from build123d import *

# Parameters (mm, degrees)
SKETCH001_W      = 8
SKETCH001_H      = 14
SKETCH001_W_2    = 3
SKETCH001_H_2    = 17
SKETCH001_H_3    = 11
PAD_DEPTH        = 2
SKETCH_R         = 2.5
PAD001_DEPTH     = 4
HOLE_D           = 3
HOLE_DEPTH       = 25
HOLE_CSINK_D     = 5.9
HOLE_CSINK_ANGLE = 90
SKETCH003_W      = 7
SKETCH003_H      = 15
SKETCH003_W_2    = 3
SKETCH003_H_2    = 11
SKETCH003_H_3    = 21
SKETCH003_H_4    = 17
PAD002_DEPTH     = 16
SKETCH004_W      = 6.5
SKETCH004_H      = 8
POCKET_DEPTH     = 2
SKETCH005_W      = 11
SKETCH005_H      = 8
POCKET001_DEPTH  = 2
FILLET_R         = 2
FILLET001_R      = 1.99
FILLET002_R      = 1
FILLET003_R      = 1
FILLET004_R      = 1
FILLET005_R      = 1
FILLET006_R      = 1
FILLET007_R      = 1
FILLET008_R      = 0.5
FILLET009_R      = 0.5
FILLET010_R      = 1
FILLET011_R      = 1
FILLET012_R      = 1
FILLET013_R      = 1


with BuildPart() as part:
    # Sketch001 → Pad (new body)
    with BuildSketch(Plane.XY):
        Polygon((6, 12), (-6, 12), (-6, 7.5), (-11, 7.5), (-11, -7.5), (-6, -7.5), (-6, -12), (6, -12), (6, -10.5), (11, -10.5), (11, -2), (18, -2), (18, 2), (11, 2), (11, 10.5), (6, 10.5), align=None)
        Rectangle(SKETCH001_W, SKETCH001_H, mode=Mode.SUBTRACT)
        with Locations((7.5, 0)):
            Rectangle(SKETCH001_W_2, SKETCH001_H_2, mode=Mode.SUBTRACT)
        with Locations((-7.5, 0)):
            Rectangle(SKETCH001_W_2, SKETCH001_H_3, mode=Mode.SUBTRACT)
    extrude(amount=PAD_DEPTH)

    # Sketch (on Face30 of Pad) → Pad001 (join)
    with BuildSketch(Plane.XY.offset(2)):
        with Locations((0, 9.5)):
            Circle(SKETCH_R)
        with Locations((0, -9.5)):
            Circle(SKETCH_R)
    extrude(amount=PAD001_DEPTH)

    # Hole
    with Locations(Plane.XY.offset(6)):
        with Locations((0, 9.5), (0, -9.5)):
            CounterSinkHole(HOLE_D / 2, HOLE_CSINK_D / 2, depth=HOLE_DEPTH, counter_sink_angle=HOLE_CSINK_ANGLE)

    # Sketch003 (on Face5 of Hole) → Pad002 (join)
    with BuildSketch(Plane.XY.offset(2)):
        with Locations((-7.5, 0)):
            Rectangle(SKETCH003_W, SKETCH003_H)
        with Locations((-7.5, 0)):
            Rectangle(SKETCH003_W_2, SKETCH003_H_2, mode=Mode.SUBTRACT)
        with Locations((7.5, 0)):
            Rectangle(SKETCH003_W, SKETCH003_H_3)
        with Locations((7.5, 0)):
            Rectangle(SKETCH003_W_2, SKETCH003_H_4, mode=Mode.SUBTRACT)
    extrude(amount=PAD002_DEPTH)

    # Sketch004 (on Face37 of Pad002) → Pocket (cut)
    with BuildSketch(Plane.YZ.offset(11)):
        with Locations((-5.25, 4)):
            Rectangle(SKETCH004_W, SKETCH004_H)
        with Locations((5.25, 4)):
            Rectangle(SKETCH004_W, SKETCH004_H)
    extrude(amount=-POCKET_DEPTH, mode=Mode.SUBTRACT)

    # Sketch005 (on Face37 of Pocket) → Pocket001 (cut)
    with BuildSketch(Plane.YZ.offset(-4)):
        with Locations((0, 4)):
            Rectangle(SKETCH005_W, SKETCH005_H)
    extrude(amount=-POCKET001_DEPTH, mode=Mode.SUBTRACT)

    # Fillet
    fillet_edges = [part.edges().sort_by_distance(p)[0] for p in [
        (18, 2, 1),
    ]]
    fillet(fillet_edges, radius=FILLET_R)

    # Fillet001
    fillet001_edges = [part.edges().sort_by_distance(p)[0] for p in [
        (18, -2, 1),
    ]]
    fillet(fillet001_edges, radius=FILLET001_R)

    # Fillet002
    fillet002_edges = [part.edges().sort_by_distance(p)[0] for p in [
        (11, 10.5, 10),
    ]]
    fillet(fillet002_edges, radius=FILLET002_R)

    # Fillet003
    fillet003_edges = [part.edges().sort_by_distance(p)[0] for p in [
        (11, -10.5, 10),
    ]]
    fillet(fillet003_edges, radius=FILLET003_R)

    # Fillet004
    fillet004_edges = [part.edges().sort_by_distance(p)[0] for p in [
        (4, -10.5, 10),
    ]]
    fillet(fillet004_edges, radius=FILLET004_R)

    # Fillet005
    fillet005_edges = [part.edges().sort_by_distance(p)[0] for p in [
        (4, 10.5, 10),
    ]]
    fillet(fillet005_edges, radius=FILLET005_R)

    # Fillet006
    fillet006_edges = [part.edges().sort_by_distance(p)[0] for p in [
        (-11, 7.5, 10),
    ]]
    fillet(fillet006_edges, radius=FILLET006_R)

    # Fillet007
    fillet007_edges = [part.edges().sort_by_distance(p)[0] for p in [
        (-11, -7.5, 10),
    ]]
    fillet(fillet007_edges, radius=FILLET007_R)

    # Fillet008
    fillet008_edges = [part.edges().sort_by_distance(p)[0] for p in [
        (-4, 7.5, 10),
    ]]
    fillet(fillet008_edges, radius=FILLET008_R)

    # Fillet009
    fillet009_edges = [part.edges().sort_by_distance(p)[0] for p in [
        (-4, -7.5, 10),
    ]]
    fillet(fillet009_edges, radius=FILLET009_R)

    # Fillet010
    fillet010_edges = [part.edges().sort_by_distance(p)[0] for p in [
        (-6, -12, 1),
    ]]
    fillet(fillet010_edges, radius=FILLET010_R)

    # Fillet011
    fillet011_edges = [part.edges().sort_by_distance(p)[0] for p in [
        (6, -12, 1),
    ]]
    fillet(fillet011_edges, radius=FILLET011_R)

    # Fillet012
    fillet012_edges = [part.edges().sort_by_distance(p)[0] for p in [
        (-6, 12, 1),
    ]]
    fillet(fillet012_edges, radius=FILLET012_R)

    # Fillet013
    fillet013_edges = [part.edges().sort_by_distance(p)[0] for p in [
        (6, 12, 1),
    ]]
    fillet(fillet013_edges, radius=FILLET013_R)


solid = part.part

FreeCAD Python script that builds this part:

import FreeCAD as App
import Part
import Sketcher

V = App.Vector
Q = App.Units.Quantity


def edges_at(feature, points):
    """Names of the edges that pass closest to the given points."""
    edges = feature.Shape.Edges
    near = lambda p: min(range(len(edges)), key=lambda i: edges[i].distToShape(Part.Vertex(*p))[0])
    return sorted({f"Edge{near(p) + 1}" for p in points})


def add_polygon(sketch, points):
    """Adds a closed chain of lines whose ends are joined by coincident constraints."""
    first, n = sketch.GeometryCount, len(points)
    for a, b in zip(points, points[1:] + points[:1]):
        sketch.addGeometry(Part.LineSegment(App.Vector(*a, 0), App.Vector(*b, 0)), False)
    for i in range(n):
        sketch.addConstraint(Sketcher.Constraint("Coincident", first + i, 2, first + (i + 1) % n, 1))

doc = App.newDocument("Part")
params = doc.addObject("Spreadsheet::Sheet", "Params")
for row, (alias, value) in enumerate([
    ("sketch1_width", "12 mm"),
    ("sketch1_width2", "5 mm"),
    ("sketch1_width3", "7 mm"),
    ("sketch1_width4", "3 mm"),
    ("sketch1_width5", "8 mm"),
    ("pad1_length", "2 mm"),
    ("sketch2_diameter", "5 mm"),
    ("pad2_length", "4 mm"),
    ("sketch3_diameter", "3 mm"),
    ("hole_diameter", "3 mm"),
    ("hole_depth", "25 mm"),
    ("hole_csink_diameter", "5.9 mm"),
    ("sketch4_width", "7 mm"),
    ("sketch4_width2", "3 mm"),
    ("sketch4_height", "15 mm"),
    ("sketch4_height2", "11 mm"),
    ("sketch4_height3", "21 mm"),
    ("pad3_length", "16 mm"),
    ("sketch5_height", "8 mm"),
    ("sketch5_width", "6.5 mm"),
    ("pocket1_length", "2 mm"),
    ("sketch6_width", "11 mm"),
    ("sketch6_height", "8 mm"),
    ("pocket2_length", "2 mm"),
    ("fillet_radius", "2 mm"),
    ("fillet2_radius", "1.99 mm"),
    ("fillet3_radius", "1 mm"),
    ("fillet4_radius", "1 mm"),
    ("fillet5_radius", "1 mm"),
    ("fillet6_radius", "1 mm"),
    ("fillet7_radius", "1 mm"),
    ("fillet8_radius", "1 mm"),
    ("fillet9_radius", "0.5 mm"),
    ("fillet10_radius", "0.5 mm"),
    ("fillet11_radius", "1 mm"),
    ("fillet12_radius", "1 mm"),
    ("fillet13_radius", "1 mm"),
    ("fillet14_radius", "1 mm"),
], start=1):
    params.set(f"A{row}", alias)
    params.set(f"B{row}", "=" + value)
    params.setAlias(f"B{row}", alias)

body = doc.addObject("PartDesign::Body", "Body")

# Sketch on XY plane
sketch1 = doc.addObject("Sketcher::SketchObject", "Sketch")
body.addObject(sketch1)
sketch1.AttachmentSupport = (doc.XY_Plane, [""])
sketch1.MapMode = "FlatFace"
add_polygon(sketch1, [(6, 12), (-6, 12), (-6, 7.5), (-11, 7.5), (-11, -7.5), (-6, -7.5), (-6, -12), (6, -12), (6, -10.5), (11, -10.5), (11, -2), (18, -2), (18, 2), (11, 2), (11, 10.5), (6, 10.5)])  # lines 0-15
add_polygon(sketch1, [(-6, -5.5), (-9, -5.5), (-9, 5.5), (-6, 5.5)])  # lines 16-19
add_polygon(sketch1, [(4, -7), (-4, -7), (-4, 7), (4, 7)])  # lines 20-23
add_polygon(sketch1, [(9, -8.5), (6, -8.5), (6, 8.5), (9, 8.5)])  # lines 24-27
sketch1.addConstraint(Sketcher.Constraint("Horizontal", 0))
sketch1.addConstraint(Sketcher.Constraint("Vertical", 1))
sketch1.addConstraint(Sketcher.Constraint("Horizontal", 2))
sketch1.addConstraint(Sketcher.Constraint("Vertical", 3))
sketch1.addConstraint(Sketcher.Constraint("Horizontal", 4))
sketch1.addConstraint(Sketcher.Constraint("Vertical", 5))
sketch1.addConstraint(Sketcher.Constraint("Horizontal", 6))
sketch1.addConstraint(Sketcher.Constraint("Vertical", 7))
sketch1.addConstraint(Sketcher.Constraint("Horizontal", 8))
sketch1.addConstraint(Sketcher.Constraint("Vertical", 9))
sketch1.addConstraint(Sketcher.Constraint("Horizontal", 10))
sketch1.addConstraint(Sketcher.Constraint("Vertical", 11))
sketch1.addConstraint(Sketcher.Constraint("Horizontal", 12))
sketch1.addConstraint(Sketcher.Constraint("Vertical", 13))
sketch1.addConstraint(Sketcher.Constraint("Horizontal", 14))
sketch1.addConstraint(Sketcher.Constraint("Vertical", 15))
sketch1.addConstraint(Sketcher.Constraint("Horizontal", 16))
sketch1.addConstraint(Sketcher.Constraint("Vertical", 17))
sketch1.addConstraint(Sketcher.Constraint("Horizontal", 18))
sketch1.addConstraint(Sketcher.Constraint("Vertical", 19))
sketch1.addConstraint(Sketcher.Constraint("Horizontal", 20))
sketch1.addConstraint(Sketcher.Constraint("Vertical", 21))
sketch1.addConstraint(Sketcher.Constraint("Horizontal", 22))
sketch1.addConstraint(Sketcher.Constraint("Vertical", 23))
sketch1.addConstraint(Sketcher.Constraint("Horizontal", 24))
sketch1.addConstraint(Sketcher.Constraint("Vertical", 25))
sketch1.addConstraint(Sketcher.Constraint("Horizontal", 26))
sketch1.addConstraint(Sketcher.Constraint("Vertical", 27))
sketch1.addConstraint(Sketcher.Constraint("Symmetric", 0, 2, 6, 2, -1, 1))
sketch1.addConstraint(Sketcher.Constraint("Symmetric", 20, 2, 22, 2, -1, 1))
sketch1.addConstraint(Sketcher.Constraint("Symmetric", 1, 2, 4, 2, -1))
sketch1.addConstraint(Sketcher.Constraint("Symmetric", 9, 2, 12, 2, -1))
sketch1.addConstraint(Sketcher.Constraint("Symmetric", 7, 2, 14, 2, -1))
sketch1.addConstraint(Sketcher.Constraint("Vertical", 5, 2, 18, 2))
sketch1.addConstraint(Sketcher.Constraint("Vertical", 15, 2, 24, 2))
sketch1.addConstraint(Sketcher.Constraint("Equal", 4, 8))
sketch1.addConstraint(Sketcher.Constraint("Equal", 18, 24))
sketch1.addConstraint(Sketcher.Constraint("DistanceX", 0, 2, 0, 1, Q("12 mm")))
sketch1.addConstraint(Sketcher.Constraint("DistanceX", 2, 2, 2, 1, Q("5 mm")))
sketch1.addConstraint(Sketcher.Constraint("DistanceX", 10, 1, 10, 2, Q("7 mm")))
sketch1.addConstraint(Sketcher.Constraint("DistanceX", 16, 2, 16, 1, Q("3 mm")))
sketch1.addConstraint(Sketcher.Constraint("DistanceX", 20, 2, 20, 1, Q("8 mm")))
sketch1.addConstraint(Sketcher.Constraint("DistanceY", 3, 2, 3, 1, Q("15 mm")))
sketch1.addConstraint(Sketcher.Constraint("DistanceY", 11, 1, 11, 2, Q("4 mm")))
sketch1.addConstraint(Sketcher.Constraint("DistanceY", 17, 1, 17, 2, Q("11 mm")))
sketch1.addConstraint(Sketcher.Constraint("DistanceY", 21, 1, 21, 2, Q("14 mm")))
sketch1.addConstraint(Sketcher.Constraint("DistanceY", 25, 1, 25, 2, Q("17 mm")))
sketch1.addConstraint(Sketcher.Constraint("DistanceY", 1, 2, 1, 1, Q("4.5 mm")))
sketch1.addConstraint(Sketcher.Constraint("DistanceY", 7, 1, 7, 2, Q("1.5 mm")))
sketch1.addConstraint(Sketcher.Constraint("DistanceY", 3, 2, 16, 2, Q("2 mm")))
sketch1.addConstraint(Sketcher.Constraint("DistanceY", 7, 2, 24, 2, Q("2 mm")))
sketch1.setExpression("Constraints[65]", "Params.sketch1_width")
sketch1.setExpression("Constraints[66]", "Params.sketch1_width2")
sketch1.setExpression("Constraints[67]", "Params.sketch1_width3")
sketch1.setExpression("Constraints[68]", "Params.sketch1_width4")
sketch1.setExpression("Constraints[69]", "Params.sketch1_width5")
pad1 = doc.addObject("PartDesign::Pad", "Pad")
body.addObject(pad1)
pad1.Profile = sketch1
pad1.setExpression("Length", "Params.pad1_length")

# Sketch on XY plane
sketch2 = doc.addObject("Sketcher::SketchObject", "Sketch001")
body.addObject(sketch2)
sketch2.AttachmentSupport = (doc.XY_Plane, [""])
sketch2.MapMode = "FlatFace"
sketch2.AttachmentOffset = App.Placement(V(0, 0, 2), App.Rotation())
sketch2.addGeometry(Part.Circle(V(0, 9.5, 0), V(0, 0, 1), 2.5), False)
sketch2.addGeometry(Part.Circle(V(0, -9.5, 0), V(0, 0, 1), 2.5), False)
sketch2.addConstraint(Sketcher.Constraint("Equal", 0, 1))
sketch2.addConstraint(Sketcher.Constraint("Symmetric", 0, 3, 1, 3, -1, 1))
sketch2.addConstraint(Sketcher.Constraint("PointOnObject", 0, 3, -2))
sketch2.addConstraint(Sketcher.Constraint("Diameter", 0, Q("5 mm")))
sketch2.addConstraint(Sketcher.Constraint("DistanceY", 1, 3, 0, 3, Q("19 mm")))
sketch2.setExpression("Constraints[3]", "Params.sketch2_diameter")
pad2 = doc.addObject("PartDesign::Pad", "Pad001")
body.addObject(pad2)
pad2.Profile = sketch2
pad2.setExpression("Length", "Params.pad2_length")

# Sketch on XY plane
sketch3 = doc.addObject("Sketcher::SketchObject", "Sketch002")
body.addObject(sketch3)
sketch3.AttachmentSupport = (doc.XY_Plane, [""])
sketch3.MapMode = "FlatFace"
sketch3.AttachmentOffset = App.Placement(V(0, 0, 6), App.Rotation())
sketch3.addGeometry(Part.Circle(V(0, 9.5, 0), V(0, 0, 1), 1.5), False)
sketch3.addGeometry(Part.Circle(V(0, -9.5, 0), V(0, 0, 1), 1.5), False)
sketch3.addConstraint(Sketcher.Constraint("Equal", 0, 1))
sketch3.addConstraint(Sketcher.Constraint("Symmetric", 0, 3, 1, 3, -1, 1))
sketch3.addConstraint(Sketcher.Constraint("PointOnObject", 0, 3, -2))
sketch3.addConstraint(Sketcher.Constraint("Diameter", 0, Q("3 mm")))
sketch3.addConstraint(Sketcher.Constraint("DistanceY", 1, 3, 0, 3, Q("19 mm")))
sketch3.setExpression("Constraints[3]", "Params.sketch3_diameter")
doc.recompute()
hole = doc.addObject("PartDesign::Hole", "Hole")
body.addObject(hole)
hole.Profile = sketch3
hole.ThreadType = "None"
hole.setExpression("Diameter", "Params.hole_diameter")
hole.DepthType = "Dimension"
hole.setExpression("Depth", "Params.hole_depth")
hole.DrillPoint = "Flat"
hole.HoleCutType = "Countersink"
hole.setExpression("HoleCutDiameter", "Params.hole_csink_diameter")
hole.HoleCutCountersinkAngle = 90

# Sketch on XY plane
sketch4 = doc.addObject("Sketcher::SketchObject", "Sketch003")
body.addObject(sketch4)
sketch4.AttachmentSupport = (doc.XY_Plane, [""])
sketch4.MapMode = "FlatFace"
sketch4.AttachmentOffset = App.Placement(V(0, 0, 2), App.Rotation())
add_polygon(sketch4, [(-11, 7.5), (-11, -7.5), (-4, -7.5), (-4, 7.5)])  # lines 0-3
add_polygon(sketch4, [(-6, -5.5), (-9, -5.5), (-9, 5.5), (-6, 5.5)])  # lines 4-7
add_polygon(sketch4, [(4, 10.5), (4, -10.5), (11, -10.5), (11, 10.5)])  # lines 8-11
add_polygon(sketch4, [(9, -8.5), (6, -8.5), (6, 8.5), (9, 8.5)])  # lines 12-15
sketch4.addConstraint(Sketcher.Constraint("Vertical", 0))
sketch4.addConstraint(Sketcher.Constraint("Horizontal", 1))
sketch4.addConstraint(Sketcher.Constraint("Vertical", 2))
sketch4.addConstraint(Sketcher.Constraint("Horizontal", 3))
sketch4.addConstraint(Sketcher.Constraint("Horizontal", 4))
sketch4.addConstraint(Sketcher.Constraint("Vertical", 5))
sketch4.addConstraint(Sketcher.Constraint("Horizontal", 6))
sketch4.addConstraint(Sketcher.Constraint("Vertical", 7))
sketch4.addConstraint(Sketcher.Constraint("Vertical", 8))
sketch4.addConstraint(Sketcher.Constraint("Horizontal", 9))
sketch4.addConstraint(Sketcher.Constraint("Vertical", 10))
sketch4.addConstraint(Sketcher.Constraint("Horizontal", 11))
sketch4.addConstraint(Sketcher.Constraint("Horizontal", 12))
sketch4.addConstraint(Sketcher.Constraint("Vertical", 13))
sketch4.addConstraint(Sketcher.Constraint("Horizontal", 14))
sketch4.addConstraint(Sketcher.Constraint("Vertical", 15))
sketch4.addConstraint(Sketcher.Constraint("Equal", 3, 9))
sketch4.addConstraint(Sketcher.Constraint("Equal", 6, 12))
sketch4.addConstraint(Sketcher.Constraint("DistanceX", 1, 1, 1, 2, Q("7 mm")))
sketch4.addConstraint(Sketcher.Constraint("DistanceX", 4, 2, 4, 1, Q("3 mm")))
sketch4.addConstraint(Sketcher.Constraint("DistanceY", 0, 2, 0, 1, Q("15 mm")))
sketch4.addConstraint(Sketcher.Constraint("DistanceY", 5, 1, 5, 2, Q("11 mm")))
sketch4.addConstraint(Sketcher.Constraint("DistanceY", 8, 2, 8, 1, Q("21 mm")))
sketch4.addConstraint(Sketcher.Constraint("DistanceY", 13, 1, 13, 2, Q("17 mm")))
sketch4.addConstraint(Sketcher.Constraint("DistanceX", 0, 2, -1, 1, Q("11 mm")))
sketch4.addConstraint(Sketcher.Constraint("DistanceX", 4, 2, -1, 1, Q("9 mm")))
sketch4.addConstraint(Sketcher.Constraint("DistanceX", -1, 1, 8, 2, Q("4 mm")))
sketch4.addConstraint(Sketcher.Constraint("DistanceX", -1, 1, 12, 2, Q("6 mm")))
sketch4.addConstraint(Sketcher.Constraint("DistanceY", 0, 2, 4, 2, Q("2 mm")))
sketch4.addConstraint(Sketcher.Constraint("DistanceY", 8, 2, 1, 2, Q("3 mm")))
sketch4.addConstraint(Sketcher.Constraint("DistanceY", 8, 2, 12, 2, Q("2 mm")))
sketch4.addConstraint(Sketcher.Constraint("DistanceY", 0, 2, -1, 1, Q("7.5 mm")))
sketch4.setExpression("Constraints[34]", "Params.sketch4_width")
sketch4.setExpression("Constraints[35]", "Params.sketch4_width2")
sketch4.setExpression("Constraints[36]", "Params.sketch4_height")
sketch4.setExpression("Constraints[37]", "Params.sketch4_height2")
sketch4.setExpression("Constraints[38]", "Params.sketch4_height3")
pad3 = doc.addObject("PartDesign::Pad", "Pad002")
body.addObject(pad3)
pad3.Profile = sketch4
pad3.setExpression("Length", "Params.pad3_length")

# Sketch on YZ plane
sketch5 = doc.addObject("Sketcher::SketchObject", "Sketch004")
body.addObject(sketch5)
sketch5.AttachmentSupport = (doc.YZ_Plane, [""])
sketch5.MapMode = "FlatFace"
sketch5.AttachmentOffset = App.Placement(V(0, 0, 11), App.Rotation())
add_polygon(sketch5, [(-8, 8), (-8, 0), (-2, 0), (-2, 8)])  # lines 0-3
add_polygon(sketch5, [(2, 8), (2, 0), (8, 0), (8, 8)])  # lines 4-7
sketch5.addConstraint(Sketcher.Constraint("Vertical", 0))
sketch5.addConstraint(Sketcher.Constraint("Horizontal", 1))
sketch5.addConstraint(Sketcher.Constraint("Vertical", 2))
sketch5.addConstraint(Sketcher.Constraint("Horizontal", 3))
sketch5.addConstraint(Sketcher.Constraint("Vertical", 4))
sketch5.addConstraint(Sketcher.Constraint("Horizontal", 5))
sketch5.addConstraint(Sketcher.Constraint("Vertical", 6))
sketch5.addConstraint(Sketcher.Constraint("Horizontal", 7))
sketch5.addConstraint(Sketcher.Constraint("Symmetric", 1, 2, 4, 2, -1, 1))
sketch5.addConstraint(Sketcher.Constraint("Symmetric", 0, 2, 5, 2, -2))
sketch5.addConstraint(Sketcher.Constraint("Horizontal", 3, 2, 6, 2))
sketch5.addConstraint(Sketcher.Constraint("DistanceY", 0, 2, 0, 1, Q("8 mm")))
sketch5.addConstraint(Sketcher.Constraint("DistanceX", 1, 1, 1, 2, Q("6.5 mm")))
sketch5.addConstraint(Sketcher.Constraint("DistanceX", 1, 2, -1, 1, Q("2 mm")))
sketch5.setExpression("Constraints[19]", "Params.sketch5_height")
sketch5.setExpression("Constraints[20]", "Params.sketch5_width")
pocket1 = doc.addObject("PartDesign::Pocket", "Pocket")
body.addObject(pocket1)
pocket1.Profile = sketch5
pocket1.setExpression("Length", "Params.pocket1_length")

# Sketch on YZ plane
sketch6 = doc.addObject("Sketcher::SketchObject", "Sketch005")
body.addObject(sketch6)
sketch6.AttachmentSupport = (doc.YZ_Plane, [""])
sketch6.MapMode = "FlatFace"
sketch6.AttachmentOffset = App.Placement(V(0, 0, -4), App.Rotation())
add_polygon(sketch6, [(-6, 8), (-6, 0), (6, 0), (6, 8)])  # lines 0-3
sketch6.addConstraint(Sketcher.Constraint("Vertical", 0))
sketch6.addConstraint(Sketcher.Constraint("Horizontal", 1))
sketch6.addConstraint(Sketcher.Constraint("Vertical", 2))
sketch6.addConstraint(Sketcher.Constraint("Horizontal", 3))
sketch6.addConstraint(Sketcher.Constraint("Symmetric", 0, 2, 1, 2, -1, 1))
sketch6.addConstraint(Sketcher.Constraint("DistanceX", 1, 1, 1, 2, Q("11 mm")))
sketch6.addConstraint(Sketcher.Constraint("DistanceY", 0, 2, 0, 1, Q("8 mm")))
sketch6.setExpression("Constraints[9]", "Params.sketch6_width")
sketch6.setExpression("Constraints[10]", "Params.sketch6_height")
pocket2 = doc.addObject("PartDesign::Pocket", "Pocket001")
body.addObject(pocket2)
pocket2.Profile = sketch6
pocket2.setExpression("Length", "Params.pocket2_length")
doc.recompute()

fillet = doc.addObject("PartDesign::Fillet", "Fillet")
body.addObject(fillet)
fillet.Base = (pocket2, edges_at(pocket2, [(18, 2, 1)]))
fillet.setExpression("Radius", "Params.fillet_radius")
doc.recompute()

fillet2 = doc.addObject("PartDesign::Fillet", "Fillet001")
body.addObject(fillet2)
fillet2.Base = (fillet, edges_at(fillet, [(18, -2, 1)]))
fillet2.setExpression("Radius", "Params.fillet2_radius")
doc.recompute()

fillet3 = doc.addObject("PartDesign::Fillet", "Fillet002")
body.addObject(fillet3)
fillet3.Base = (fillet2, edges_at(fillet2, [(11, 10.5, 9)]))
fillet3.setExpression("Radius", "Params.fillet3_radius")
doc.recompute()

fillet4 = doc.addObject("PartDesign::Fillet", "Fillet003")
body.addObject(fillet4)
fillet4.Base = (fillet3, edges_at(fillet3, [(11, -10.5, 9)]))
fillet4.setExpression("Radius", "Params.fillet4_radius")
doc.recompute()

fillet5 = doc.addObject("PartDesign::Fillet", "Fillet004")
body.addObject(fillet5)
fillet5.Base = (fillet4, edges_at(fillet4, [(4, -10.5, 10)]))
fillet5.setExpression("Radius", "Params.fillet5_radius")
doc.recompute()

fillet6 = doc.addObject("PartDesign::Fillet", "Fillet005")
body.addObject(fillet6)
fillet6.Base = (fillet5, edges_at(fillet5, [(4, 10.5, 10)]))
fillet6.setExpression("Radius", "Params.fillet6_radius")
doc.recompute()

fillet7 = doc.addObject("PartDesign::Fillet", "Fillet006")
body.addObject(fillet7)
fillet7.Base = (fillet6, edges_at(fillet6, [(-11, 7.5, 9)]))
fillet7.setExpression("Radius", "Params.fillet7_radius")
doc.recompute()

fillet8 = doc.addObject("PartDesign::Fillet", "Fillet007")
body.addObject(fillet8)
fillet8.Base = (fillet7, edges_at(fillet7, [(-11, -7.5, 9)]))
fillet8.setExpression("Radius", "Params.fillet8_radius")
doc.recompute()

fillet9 = doc.addObject("PartDesign::Fillet", "Fillet008")
body.addObject(fillet9)
fillet9.Base = (fillet8, edges_at(fillet8, [(-4, 7.5, 10)]))
fillet9.setExpression("Radius", "Params.fillet9_radius")
doc.recompute()

fillet10 = doc.addObject("PartDesign::Fillet", "Fillet009")
body.addObject(fillet10)
fillet10.Base = (fillet9, edges_at(fillet9, [(-4, -7.5, 10)]))
fillet10.setExpression("Radius", "Params.fillet10_radius")
doc.recompute()

fillet11 = doc.addObject("PartDesign::Fillet", "Fillet010")
body.addObject(fillet11)
fillet11.Base = (fillet10, edges_at(fillet10, [(-6, -12, 1)]))
fillet11.setExpression("Radius", "Params.fillet11_radius")
doc.recompute()

fillet12 = doc.addObject("PartDesign::Fillet", "Fillet011")
body.addObject(fillet12)
fillet12.Base = (fillet11, edges_at(fillet11, [(6, -12, 1)]))
fillet12.setExpression("Radius", "Params.fillet12_radius")
doc.recompute()

fillet13 = doc.addObject("PartDesign::Fillet", "Fillet012")
body.addObject(fillet13)
fillet13.Base = (fillet12, edges_at(fillet12, [(-6, 12, 1)]))
fillet13.setExpression("Radius", "Params.fillet13_radius")
doc.recompute()

fillet14 = doc.addObject("PartDesign::Fillet", "Fillet013")
body.addObject(fillet14)
fillet14.Base = (fillet13, edges_at(fillet13, [(6, 12, 1)]))
fillet14.setExpression("Radius", "Params.fillet14_radius")

doc.recompute()
